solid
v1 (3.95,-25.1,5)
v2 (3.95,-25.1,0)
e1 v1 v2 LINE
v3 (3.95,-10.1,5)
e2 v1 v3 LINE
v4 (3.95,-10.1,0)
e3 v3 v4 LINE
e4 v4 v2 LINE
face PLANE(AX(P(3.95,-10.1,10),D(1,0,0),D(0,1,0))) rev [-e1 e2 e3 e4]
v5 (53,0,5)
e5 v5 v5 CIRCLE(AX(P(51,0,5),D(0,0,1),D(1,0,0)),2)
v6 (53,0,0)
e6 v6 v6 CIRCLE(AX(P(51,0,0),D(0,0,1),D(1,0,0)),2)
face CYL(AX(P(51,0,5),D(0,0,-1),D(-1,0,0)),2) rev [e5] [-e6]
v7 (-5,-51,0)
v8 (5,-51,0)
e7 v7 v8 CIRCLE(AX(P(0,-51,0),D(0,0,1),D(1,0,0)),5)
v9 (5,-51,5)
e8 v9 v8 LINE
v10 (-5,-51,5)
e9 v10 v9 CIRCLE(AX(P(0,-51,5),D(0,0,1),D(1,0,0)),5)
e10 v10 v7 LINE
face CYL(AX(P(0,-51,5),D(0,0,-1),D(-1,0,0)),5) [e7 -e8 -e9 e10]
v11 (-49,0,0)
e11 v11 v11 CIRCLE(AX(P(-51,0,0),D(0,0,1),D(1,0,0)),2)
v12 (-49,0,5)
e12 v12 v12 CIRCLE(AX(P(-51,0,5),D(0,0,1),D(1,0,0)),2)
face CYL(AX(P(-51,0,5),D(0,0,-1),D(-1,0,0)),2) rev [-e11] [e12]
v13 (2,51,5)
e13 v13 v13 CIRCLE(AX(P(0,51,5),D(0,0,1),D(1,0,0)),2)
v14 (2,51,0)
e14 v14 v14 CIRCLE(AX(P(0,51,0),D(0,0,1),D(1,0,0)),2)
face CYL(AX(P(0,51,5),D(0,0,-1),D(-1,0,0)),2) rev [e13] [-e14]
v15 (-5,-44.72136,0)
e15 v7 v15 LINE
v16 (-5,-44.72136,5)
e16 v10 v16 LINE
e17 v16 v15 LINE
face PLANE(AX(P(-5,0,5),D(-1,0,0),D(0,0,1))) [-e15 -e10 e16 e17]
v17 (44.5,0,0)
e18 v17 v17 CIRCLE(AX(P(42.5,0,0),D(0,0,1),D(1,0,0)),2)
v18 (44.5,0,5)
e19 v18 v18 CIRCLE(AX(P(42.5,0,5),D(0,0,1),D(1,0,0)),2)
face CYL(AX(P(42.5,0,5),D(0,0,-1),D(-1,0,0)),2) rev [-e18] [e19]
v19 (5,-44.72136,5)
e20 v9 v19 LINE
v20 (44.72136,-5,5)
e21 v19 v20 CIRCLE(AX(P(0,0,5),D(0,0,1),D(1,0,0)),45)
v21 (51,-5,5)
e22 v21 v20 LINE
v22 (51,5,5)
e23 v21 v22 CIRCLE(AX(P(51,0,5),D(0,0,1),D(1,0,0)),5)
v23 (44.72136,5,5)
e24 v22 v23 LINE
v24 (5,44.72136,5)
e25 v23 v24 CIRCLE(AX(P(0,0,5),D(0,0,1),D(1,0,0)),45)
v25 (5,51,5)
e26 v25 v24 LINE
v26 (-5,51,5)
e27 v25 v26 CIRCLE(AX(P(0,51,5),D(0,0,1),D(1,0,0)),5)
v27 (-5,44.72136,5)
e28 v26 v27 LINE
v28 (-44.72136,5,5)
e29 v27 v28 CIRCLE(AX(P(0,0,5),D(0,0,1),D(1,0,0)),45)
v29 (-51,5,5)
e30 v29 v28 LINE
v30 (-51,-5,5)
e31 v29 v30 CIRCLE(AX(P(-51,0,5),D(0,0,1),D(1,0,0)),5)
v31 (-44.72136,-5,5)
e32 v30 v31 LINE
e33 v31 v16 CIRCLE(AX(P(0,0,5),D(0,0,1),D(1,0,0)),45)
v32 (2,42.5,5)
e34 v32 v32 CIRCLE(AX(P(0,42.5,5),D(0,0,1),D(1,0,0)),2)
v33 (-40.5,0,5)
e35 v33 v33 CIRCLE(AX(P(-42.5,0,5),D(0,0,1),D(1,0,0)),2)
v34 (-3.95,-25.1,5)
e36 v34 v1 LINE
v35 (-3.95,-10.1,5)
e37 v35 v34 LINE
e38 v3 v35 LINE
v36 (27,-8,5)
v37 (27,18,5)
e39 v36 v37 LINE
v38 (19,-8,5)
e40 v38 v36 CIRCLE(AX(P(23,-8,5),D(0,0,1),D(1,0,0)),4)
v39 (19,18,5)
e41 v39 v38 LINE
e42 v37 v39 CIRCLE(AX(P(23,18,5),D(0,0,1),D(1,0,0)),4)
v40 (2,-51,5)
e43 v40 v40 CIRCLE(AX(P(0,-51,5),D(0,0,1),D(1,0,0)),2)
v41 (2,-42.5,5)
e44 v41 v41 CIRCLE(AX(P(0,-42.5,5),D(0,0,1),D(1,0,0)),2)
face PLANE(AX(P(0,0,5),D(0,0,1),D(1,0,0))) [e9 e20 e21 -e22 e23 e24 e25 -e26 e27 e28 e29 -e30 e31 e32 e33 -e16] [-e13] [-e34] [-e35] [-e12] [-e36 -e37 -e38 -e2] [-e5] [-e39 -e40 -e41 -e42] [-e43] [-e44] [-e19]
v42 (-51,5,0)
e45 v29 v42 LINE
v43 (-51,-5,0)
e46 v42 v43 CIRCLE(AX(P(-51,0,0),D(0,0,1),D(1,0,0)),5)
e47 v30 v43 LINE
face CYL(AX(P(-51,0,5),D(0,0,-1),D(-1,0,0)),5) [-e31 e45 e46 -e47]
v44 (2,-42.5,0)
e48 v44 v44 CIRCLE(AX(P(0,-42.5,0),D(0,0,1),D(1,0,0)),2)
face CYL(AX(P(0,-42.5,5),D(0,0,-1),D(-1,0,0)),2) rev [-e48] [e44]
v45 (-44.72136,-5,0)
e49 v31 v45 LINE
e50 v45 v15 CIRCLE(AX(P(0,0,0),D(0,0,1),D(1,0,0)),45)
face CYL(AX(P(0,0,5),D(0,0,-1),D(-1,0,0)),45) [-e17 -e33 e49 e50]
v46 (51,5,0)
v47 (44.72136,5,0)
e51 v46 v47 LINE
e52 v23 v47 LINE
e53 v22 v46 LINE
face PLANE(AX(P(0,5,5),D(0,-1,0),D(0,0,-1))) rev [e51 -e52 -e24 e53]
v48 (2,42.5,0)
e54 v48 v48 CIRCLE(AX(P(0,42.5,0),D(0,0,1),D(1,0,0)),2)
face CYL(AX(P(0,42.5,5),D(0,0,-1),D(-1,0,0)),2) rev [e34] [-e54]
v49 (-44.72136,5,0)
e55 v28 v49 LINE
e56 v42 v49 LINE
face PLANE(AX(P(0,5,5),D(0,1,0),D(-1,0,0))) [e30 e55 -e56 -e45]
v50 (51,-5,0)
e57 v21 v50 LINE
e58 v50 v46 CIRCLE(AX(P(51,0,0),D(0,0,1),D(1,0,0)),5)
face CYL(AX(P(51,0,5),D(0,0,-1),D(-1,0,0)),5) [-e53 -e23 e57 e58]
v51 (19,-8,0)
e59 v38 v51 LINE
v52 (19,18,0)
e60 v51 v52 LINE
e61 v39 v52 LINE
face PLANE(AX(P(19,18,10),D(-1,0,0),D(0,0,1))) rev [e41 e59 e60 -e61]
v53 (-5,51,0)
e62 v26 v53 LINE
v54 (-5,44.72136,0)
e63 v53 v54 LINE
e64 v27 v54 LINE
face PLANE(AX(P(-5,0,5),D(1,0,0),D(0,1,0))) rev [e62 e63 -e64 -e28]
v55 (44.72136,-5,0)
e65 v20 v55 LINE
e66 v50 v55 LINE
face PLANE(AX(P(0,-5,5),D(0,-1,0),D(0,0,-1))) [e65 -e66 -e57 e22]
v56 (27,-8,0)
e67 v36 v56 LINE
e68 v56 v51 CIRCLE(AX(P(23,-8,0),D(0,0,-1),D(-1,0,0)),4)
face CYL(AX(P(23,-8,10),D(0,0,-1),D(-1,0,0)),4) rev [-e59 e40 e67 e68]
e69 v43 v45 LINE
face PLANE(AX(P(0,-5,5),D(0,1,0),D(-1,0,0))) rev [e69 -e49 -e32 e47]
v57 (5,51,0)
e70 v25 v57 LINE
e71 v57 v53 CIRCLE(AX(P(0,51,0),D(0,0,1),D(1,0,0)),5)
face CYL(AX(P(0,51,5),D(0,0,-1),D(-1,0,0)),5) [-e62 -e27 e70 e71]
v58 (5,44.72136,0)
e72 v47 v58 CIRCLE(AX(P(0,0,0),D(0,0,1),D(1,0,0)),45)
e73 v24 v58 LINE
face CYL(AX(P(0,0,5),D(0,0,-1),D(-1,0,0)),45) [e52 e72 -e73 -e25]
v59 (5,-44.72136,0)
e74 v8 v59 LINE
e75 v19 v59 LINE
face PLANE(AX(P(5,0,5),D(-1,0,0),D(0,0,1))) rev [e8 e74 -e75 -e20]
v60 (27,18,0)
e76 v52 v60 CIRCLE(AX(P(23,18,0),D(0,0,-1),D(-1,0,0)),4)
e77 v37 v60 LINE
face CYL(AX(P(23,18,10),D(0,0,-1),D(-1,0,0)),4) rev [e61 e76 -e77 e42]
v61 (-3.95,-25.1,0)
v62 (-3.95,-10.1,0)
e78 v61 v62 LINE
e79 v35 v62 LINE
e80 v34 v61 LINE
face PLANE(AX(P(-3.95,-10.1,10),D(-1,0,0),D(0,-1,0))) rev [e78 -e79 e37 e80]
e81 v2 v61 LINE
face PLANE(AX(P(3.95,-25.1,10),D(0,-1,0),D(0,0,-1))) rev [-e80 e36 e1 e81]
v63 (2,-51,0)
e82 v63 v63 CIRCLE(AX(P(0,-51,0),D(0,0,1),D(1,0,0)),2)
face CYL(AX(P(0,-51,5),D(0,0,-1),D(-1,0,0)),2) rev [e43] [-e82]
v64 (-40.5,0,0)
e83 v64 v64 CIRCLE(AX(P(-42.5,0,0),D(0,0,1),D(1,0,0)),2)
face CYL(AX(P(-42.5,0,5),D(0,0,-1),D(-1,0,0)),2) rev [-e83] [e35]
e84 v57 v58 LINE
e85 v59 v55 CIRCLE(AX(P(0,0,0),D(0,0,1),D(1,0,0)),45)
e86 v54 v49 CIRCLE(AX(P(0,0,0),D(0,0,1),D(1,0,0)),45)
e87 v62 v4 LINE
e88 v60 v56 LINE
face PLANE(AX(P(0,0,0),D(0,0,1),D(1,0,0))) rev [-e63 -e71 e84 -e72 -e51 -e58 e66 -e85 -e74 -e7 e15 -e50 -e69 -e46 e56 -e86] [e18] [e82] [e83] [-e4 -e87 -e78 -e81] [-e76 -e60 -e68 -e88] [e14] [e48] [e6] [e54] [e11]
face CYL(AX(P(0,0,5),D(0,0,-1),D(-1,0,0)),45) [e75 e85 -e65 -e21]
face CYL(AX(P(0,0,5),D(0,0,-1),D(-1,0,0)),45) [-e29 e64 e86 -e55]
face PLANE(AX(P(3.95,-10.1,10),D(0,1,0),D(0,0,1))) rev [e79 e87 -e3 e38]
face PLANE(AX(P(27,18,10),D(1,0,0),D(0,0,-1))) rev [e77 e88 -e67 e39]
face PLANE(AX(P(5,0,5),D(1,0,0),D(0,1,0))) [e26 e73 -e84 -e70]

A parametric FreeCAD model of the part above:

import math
import FreeCAD as App
import Part
import Sketcher


def add_polygon(sketch, points):
    """Adds a closed chain of lines whose ends are joined by coincident constraints."""
    first, n = sketch.GeometryCount, len(points)
    for a, b in zip(points, points[1:] + points[:1]):
        sketch.addGeometry(Part.LineSegment(App.Vector(*a, 0), App.Vector(*b, 0)), False)
    for i in range(n):
        sketch.addConstraint(Sketcher.Constraint("Coincident", first + i, 2, first + (i + 1) % n, 1))

doc = App.newDocument("Part")
body = doc.addObject("PartDesign::Body", "Body")

# Sketch on XY plane
sketch1 = doc.addObject("Sketcher::SketchObject", "Sketch")
body.addObject(sketch1)
sketch1.AttachmentSupport = (doc.XY_Plane, [""])
sketch1.MapMode = "FlatFace"
sketch1.addGeometry(Part.ArcOfCircle(Part.Circle(App.Vector(0, 51, 0), App.Vector(0, 0, 1), 5), math.radians(0), math.radians(180)), False)
sketch1.addGeometry(Part.LineSegment(App.Vector(-5, 51, 0), App.Vector(-5, 44.7, 0)), False)
sketch1.addGeometry(Part.ArcOfCircle(Part.Circle(App.Vector(0, 0, 0), App.Vector(0, 0, 1), 45), math.radians(96), math.radians(174)), False)
sketch1.addGeometry(Part.LineSegment(App.Vector(-44.7, 5, 0), App.Vector(-51, 5, 0)), False)
sketch1.addGeometry(Part.ArcOfCircle(Part.Circle(App.Vector(-51, 0, 0), App.Vector(0, 0, 1), 5), math.radians(90), math.radians(270)), False)
sketch1.addGeometry(Part.LineSegment(App.Vector(-51, -5, 0), App.Vector(-44.7, -5, 0)), False)
sketch1.addGeometry(Part.ArcOfCircle(Part.Circle(App.Vector(0, 0, 0), App.Vector(0, 0, 1), 45), math.radians(-174), math.radians(-96)), False)
sketch1.addGeometry(Part.LineSegment(App.Vector(-5, -44.7, 0), App.Vector(-5, -51, 0)), False)
sketch1.addGeometry(Part.ArcOfCircle(Part.Circle(App.Vector(0, -51, 0), App.Vector(0, 0, 1), 5), math.radians(180), math.radians(360)), False)
sketch1.addGeometry(Part.LineSegment(App.Vector(5, -51, 0), App.Vector(5, -44.7, 0)), False)
sketch1.addGeometry(Part.ArcOfCircle(Part.Circle(App.Vector(0, 0, 0), App.Vector(0, 0, 1), 45), math.radians(-84), math.radians(-6)), False)
sketch1.addGeometry(Part.LineSegment(App.Vector(44.7, -5, 0), App.Vector(51, -5, 0)), False)
sketch1.addGeometry(Part.ArcOfCircle(Part.Circle(App.Vector(51, 0, 0), App.Vector(0, 0, 1), 5), math.radians(-90), math.radians(90)), False)
sketch1.addGeometry(Part.LineSegment(App.Vector(51, 5, 0), App.Vector(44.7, 5, 0)), False)
sketch1.addGeometry(Part.ArcOfCircle(Part.Circle(App.Vector(0, 0, 0), App.Vector(0, 0, 1), 45), math.radians(6), math.radians(84)), False)
sketch1.addGeometry(Part.LineSegment(App.Vector(5, 44.7, 0), App.Vector(5, 51, 0)), False)
sketch1.addGeometry(Part.Circle(App.Vector(0, -51, 0), App.Vector(0, 0, 1), 2), False)
sketch1.addGeometry(Part.Circle(App.Vector(0, -42.5, 0), App.Vector(0, 0, 1), 2), False)
sketch1.addGeometry(Part.Circle(App.Vector(-51, 0, 0), App.Vector(0, 0, 1), 2), False)
sketch1.addGeometry(Part.Circle(App.Vector(-42.5, 0, 0), App.Vector(0, 0, 1), 2), False)
sketch1.addGeometry(Part.Circle(App.Vector(42.5, 0, 0), App.Vector(0, 0, 1), 2), False)
sketch1.addGeometry(Part.Circle(App.Vector(51, 0, 0), App.Vector(0, 0, 1), 2), False)
sketch1.addGeometry(Part.Circle(App.Vector(0, 42.5, 0), App.Vector(0, 0, 1), 2), False)
sketch1.addGeometry(Part.Circle(App.Vector(0, 51, 0), App.Vector(0, 0, 1), 2), False)
sketch1.addConstraint(Sketcher.Constraint("Tangent", 0, 2, 1, 1))
sketch1.addConstraint(Sketcher.Constraint("Coincident", 1, 2, 2, 1))
sketch1.addConstraint(Sketcher.Constraint("Coincident", 2, 2, 3, 1))
sketch1.addConstraint(Sketcher.Constraint("Tangent", 3, 2, 4, 1))
sketch1.addConstraint(Sketcher.Constraint("Tangent", 4, 2, 5, 1))
sketch1.addConstraint(Sketcher.Constraint("Coincident", 5, 2, 6, 1))
sketch1.addConstraint(Sketcher.Constraint("Coincident", 6, 2, 7, 1))
sketch1.addConstraint(Sketcher.Constraint("Tangent", 7, 2, 8, 1))
sketch1.addConstraint(Sketcher.Constraint("Tangent", 8, 2, 9, 1))
sketch1.addConstraint(Sketcher.Constraint("Coincident", 9, 2, 10, 1))
sketch1.addConstraint(Sketcher.Constraint("Coincident", 10, 2, 11, 1))
sketch1.addConstraint(Sketcher.Constraint("Tangent", 11, 2, 12, 1))
sketch1.addConstraint(Sketcher.Constraint("Tangent", 12, 2, 13, 1))
sketch1.addConstraint(Sketcher.Constraint("Coincident", 13, 2, 14, 1))
sketch1.addConstraint(Sketcher.Constraint("Coincident", 14, 2, 15, 1))
sketch1.addConstraint(Sketcher.Constraint("Tangent", 15, 2, 0, 1))
sketch1.addConstraint(Sketcher.Constraint("Vertical", 1))
sketch1.addConstraint(Sketcher.Constraint("Horizontal", 3))
sketch1.addConstraint(Sketcher.Constraint("Horizontal", 5))
sketch1.addConstraint(Sketcher.Constraint("Vertical", 7))
sketch1.addConstraint(Sketcher.Constraint("Vertical", 9))
sketch1.addConstraint(Sketcher.Constraint("Horizontal", 11))
sketch1.addConstraint(Sketcher.Constraint("Horizontal", 13))
sketch1.addConstraint(Sketcher.Constraint("Vertical", 15))
sketch1.addConstraint(Sketcher.Constraint("Coincident", 2, 3, -1, 1))
sketch1.addConstraint(Sketcher.Constraint("Coincident", 6, 3, -1, 1))
sketch1.addConstraint(Sketcher.Constraint("Coincident", 10, 3, -1, 1))
sketch1.addConstraint(Sketcher.Constraint("Coincident", 14, 3, -1, 1))
sketch1.addConstraint(Sketcher.Constraint("Coincident", 16, 3, 8, 3))
sketch1.addConstraint(Sketcher.Constraint("Coincident", 18, 3, 4, 3))
sketch1.addConstraint(Sketcher.Constraint("Coincident", 21, 3, 12, 3))
sketch1.addConstraint(Sketcher.Constraint("Coincident", 23, 3, 0, 3))
sketch1.addConstraint(Sketcher.Constraint("Equal", 0, 4))
sketch1.addConstraint(Sketcher.Constraint("Equal", 2, 6))
sketch1.addConstraint(Sketcher.Constraint("Equal", 4, 8))
sketch1.addConstraint(Sketcher.Constraint("Equal", 6, 10))
sketch1.addConstraint(Sketcher.Constraint("Equal", 8, 12))
sketch1.addConstraint(Sketcher.Constraint("Equal", 10, 14))
sketch1.addConstraint(Sketcher.Constraint("Equal", 16, 17))
sketch1.addConstraint(Sketcher.Constraint("Equal", 17, 18))
sketch1.addConstraint(Sketcher.Constraint("Equal", 18, 19))
sketch1.addConstraint(Sketcher.Constraint("Equal", 19, 20))
sketch1.addConstraint(Sketcher.Constraint("Equal", 20, 21))
sketch1.addConstraint(Sketcher.Constraint("Equal", 21, 22))
sketch1.addConstraint(Sketcher.Constraint("Equal", 22, 23))
sketch1.addConstraint(Sketcher.Constraint("Symmetric", 0, 3, 8, 3, -1, 1))
sketch1.addConstraint(Sketcher.Constraint("Symmetric", 4, 3, 12, 3, -1, 1))
sketch1.addConstraint(Sketcher.Constraint("Symmetric", 19, 3, 20, 3, -1, 1))
sketch1.addConstraint(Sketcher.Constraint("Symmetric", 17, 3, 22, 3, -1, 1))
sketch1.addConstraint(Sketcher.Constraint("PointOnObject", 0, 3, -2))
sketch1.addConstraint(Sketcher.Constraint("PointOnObject", 4, 3, -1))
sketch1.addConstraint(Sketcher.Constraint("PointOnObject", 17, 3, -2))
sketch1.addConstraint(Sketcher.Constraint("PointOnObject", 19, 3, -1))
sketch1.addConstraint(Sketcher.Constraint("Equal", 13, 1))
sketch1.addConstraint(Sketcher.Constraint("Diameter", 16, 4.0))
sketch1.addConstraint(Sketcher.Constraint("Radius", 0, 5.0))
sketch1.addConstraint(Sketcher.Constraint("Radius", 2, 45.0))
sketch1.addConstraint(Sketcher.Constraint("DistanceY", -1, 1, 0, 3, 51.0))
sketch1.addConstraint(Sketcher.Constraint("DistanceY", 17, 3, -1, 1, 42.5))
sketch1.addConstraint(Sketcher.Constraint("DistanceX", 19, 3, -1, 1, 42.5))
pad1 = doc.addObject("PartDesign::Pad", "Pad")
body.addObject(pad1)
pad1.Profile = sketch1
pad1.Length = 5

# Sketch on XY plane
sketch2 = doc.addObject("Sketcher::SketchObject", "Sketch001")
body.addObject(sketch2)
sketch2.AttachmentSupport = (doc.XY_Plane, [""])
sketch2.MapMode = "FlatFace"
add_polygon(sketch2, [(4, -10), (4, -25), (-4, -25), (-4, -10)])  # lines 0-3
sketch2.addConstraint(Sketcher.Constraint("Vertical", 0))
sketch2.addConstraint(Sketcher.Constraint("Horizontal", 1))
sketch2.addConstraint(Sketcher.Constraint("Vertical", 2))
sketch2.addConstraint(Sketcher.Constraint("Horizontal", 3))
sketch2.addConstraint(Sketcher.Constraint("DistanceY", 0, 2, 0, 1, 15.0))
sketch2.addConstraint(Sketcher.Constraint("DistanceX", 1, 2, 1, 1, 7.9))
sketch2.addConstraint(Sketcher.Constraint("DistanceY", 0, 2, -1, 1, 25.1))
sketch2.addConstraint(Sketcher.Constraint("DistanceX", -1, 1, 0, 2, 3.95))
pocket1 = doc.addObject("PartDesign::Pocket", "Pocket")
body.addObject(pocket1)
pocket1.Profile = sketch2
pocket1.Length = 10
pocket1.Reversed = True

# Sketch on XY plane
sketch3 = doc.addObject("Sketcher::SketchObject", "Sketch002")
body.addObject(sketch3)
sketch3.AttachmentSupport = (doc.XY_Plane, [""])
sketch3.MapMode = "FlatFace"
sketch3.addGeometry(Part.LineSegment(App.Vector(19, -8, 0), App.Vector(19, 18, 0)), False)
sketch3.addGeometry(Part.ArcOfCircle(Part.Circle(App.Vector(23, 18, 0), App.Vector(0, 0, 1), 4), math.radians(0), math.radians(180)), False)
sketch3.addGeometry(Part.LineSegment(App.Vector(27, 18, 0), App.Vector(27, -8, 0)), False)
sketch3.addGeometry(Part.ArcOfCircle(Part.Circle(App.Vector(23, -8, 0), App.Vector(0, 0, 1), 4), math.radians(180), math.radians(360)), False)
sketch3.addConstraint(Sketcher.Constraint("Tangent", 0, 2, 1, 2))
sketch3.addConstraint(Sketcher.Constraint("Tangent", 1, 1, 2, 1))
sketch3.addConstraint(Sketcher.Constraint("Tangent", 2, 2, 3, 2))
sketch3.addConstraint(Sketcher.Constraint("Tangent", 3, 1, 0, 1))
sketch3.addConstraint(Sketcher.Constraint("Vertical", 0))
sketch3.addConstraint(Sketcher.Constraint("Vertical", 2))
sketch3.addConstraint(Sketcher.Constraint("Radius", 1, 4.0))
sketch3.addConstraint(Sketcher.Constraint("DistanceY", 0, 1, 0, 2, 26.0))
sketch3.addConstraint(Sketcher.Constraint("DistanceX", -1, 1, 1, 3, 23.0))
sketch3.addConstraint(Sketcher.Constraint("DistanceY", -1, 1, 1, 3, 18.0))
pocket2 = doc.addObject("PartDesign::Pocket", "Pocket001")
body.addObject(pocket2)
pocket2.Profile = sketch3
pocket2.Length = 10
pocket2.Reversed = True

doc.recompute()
